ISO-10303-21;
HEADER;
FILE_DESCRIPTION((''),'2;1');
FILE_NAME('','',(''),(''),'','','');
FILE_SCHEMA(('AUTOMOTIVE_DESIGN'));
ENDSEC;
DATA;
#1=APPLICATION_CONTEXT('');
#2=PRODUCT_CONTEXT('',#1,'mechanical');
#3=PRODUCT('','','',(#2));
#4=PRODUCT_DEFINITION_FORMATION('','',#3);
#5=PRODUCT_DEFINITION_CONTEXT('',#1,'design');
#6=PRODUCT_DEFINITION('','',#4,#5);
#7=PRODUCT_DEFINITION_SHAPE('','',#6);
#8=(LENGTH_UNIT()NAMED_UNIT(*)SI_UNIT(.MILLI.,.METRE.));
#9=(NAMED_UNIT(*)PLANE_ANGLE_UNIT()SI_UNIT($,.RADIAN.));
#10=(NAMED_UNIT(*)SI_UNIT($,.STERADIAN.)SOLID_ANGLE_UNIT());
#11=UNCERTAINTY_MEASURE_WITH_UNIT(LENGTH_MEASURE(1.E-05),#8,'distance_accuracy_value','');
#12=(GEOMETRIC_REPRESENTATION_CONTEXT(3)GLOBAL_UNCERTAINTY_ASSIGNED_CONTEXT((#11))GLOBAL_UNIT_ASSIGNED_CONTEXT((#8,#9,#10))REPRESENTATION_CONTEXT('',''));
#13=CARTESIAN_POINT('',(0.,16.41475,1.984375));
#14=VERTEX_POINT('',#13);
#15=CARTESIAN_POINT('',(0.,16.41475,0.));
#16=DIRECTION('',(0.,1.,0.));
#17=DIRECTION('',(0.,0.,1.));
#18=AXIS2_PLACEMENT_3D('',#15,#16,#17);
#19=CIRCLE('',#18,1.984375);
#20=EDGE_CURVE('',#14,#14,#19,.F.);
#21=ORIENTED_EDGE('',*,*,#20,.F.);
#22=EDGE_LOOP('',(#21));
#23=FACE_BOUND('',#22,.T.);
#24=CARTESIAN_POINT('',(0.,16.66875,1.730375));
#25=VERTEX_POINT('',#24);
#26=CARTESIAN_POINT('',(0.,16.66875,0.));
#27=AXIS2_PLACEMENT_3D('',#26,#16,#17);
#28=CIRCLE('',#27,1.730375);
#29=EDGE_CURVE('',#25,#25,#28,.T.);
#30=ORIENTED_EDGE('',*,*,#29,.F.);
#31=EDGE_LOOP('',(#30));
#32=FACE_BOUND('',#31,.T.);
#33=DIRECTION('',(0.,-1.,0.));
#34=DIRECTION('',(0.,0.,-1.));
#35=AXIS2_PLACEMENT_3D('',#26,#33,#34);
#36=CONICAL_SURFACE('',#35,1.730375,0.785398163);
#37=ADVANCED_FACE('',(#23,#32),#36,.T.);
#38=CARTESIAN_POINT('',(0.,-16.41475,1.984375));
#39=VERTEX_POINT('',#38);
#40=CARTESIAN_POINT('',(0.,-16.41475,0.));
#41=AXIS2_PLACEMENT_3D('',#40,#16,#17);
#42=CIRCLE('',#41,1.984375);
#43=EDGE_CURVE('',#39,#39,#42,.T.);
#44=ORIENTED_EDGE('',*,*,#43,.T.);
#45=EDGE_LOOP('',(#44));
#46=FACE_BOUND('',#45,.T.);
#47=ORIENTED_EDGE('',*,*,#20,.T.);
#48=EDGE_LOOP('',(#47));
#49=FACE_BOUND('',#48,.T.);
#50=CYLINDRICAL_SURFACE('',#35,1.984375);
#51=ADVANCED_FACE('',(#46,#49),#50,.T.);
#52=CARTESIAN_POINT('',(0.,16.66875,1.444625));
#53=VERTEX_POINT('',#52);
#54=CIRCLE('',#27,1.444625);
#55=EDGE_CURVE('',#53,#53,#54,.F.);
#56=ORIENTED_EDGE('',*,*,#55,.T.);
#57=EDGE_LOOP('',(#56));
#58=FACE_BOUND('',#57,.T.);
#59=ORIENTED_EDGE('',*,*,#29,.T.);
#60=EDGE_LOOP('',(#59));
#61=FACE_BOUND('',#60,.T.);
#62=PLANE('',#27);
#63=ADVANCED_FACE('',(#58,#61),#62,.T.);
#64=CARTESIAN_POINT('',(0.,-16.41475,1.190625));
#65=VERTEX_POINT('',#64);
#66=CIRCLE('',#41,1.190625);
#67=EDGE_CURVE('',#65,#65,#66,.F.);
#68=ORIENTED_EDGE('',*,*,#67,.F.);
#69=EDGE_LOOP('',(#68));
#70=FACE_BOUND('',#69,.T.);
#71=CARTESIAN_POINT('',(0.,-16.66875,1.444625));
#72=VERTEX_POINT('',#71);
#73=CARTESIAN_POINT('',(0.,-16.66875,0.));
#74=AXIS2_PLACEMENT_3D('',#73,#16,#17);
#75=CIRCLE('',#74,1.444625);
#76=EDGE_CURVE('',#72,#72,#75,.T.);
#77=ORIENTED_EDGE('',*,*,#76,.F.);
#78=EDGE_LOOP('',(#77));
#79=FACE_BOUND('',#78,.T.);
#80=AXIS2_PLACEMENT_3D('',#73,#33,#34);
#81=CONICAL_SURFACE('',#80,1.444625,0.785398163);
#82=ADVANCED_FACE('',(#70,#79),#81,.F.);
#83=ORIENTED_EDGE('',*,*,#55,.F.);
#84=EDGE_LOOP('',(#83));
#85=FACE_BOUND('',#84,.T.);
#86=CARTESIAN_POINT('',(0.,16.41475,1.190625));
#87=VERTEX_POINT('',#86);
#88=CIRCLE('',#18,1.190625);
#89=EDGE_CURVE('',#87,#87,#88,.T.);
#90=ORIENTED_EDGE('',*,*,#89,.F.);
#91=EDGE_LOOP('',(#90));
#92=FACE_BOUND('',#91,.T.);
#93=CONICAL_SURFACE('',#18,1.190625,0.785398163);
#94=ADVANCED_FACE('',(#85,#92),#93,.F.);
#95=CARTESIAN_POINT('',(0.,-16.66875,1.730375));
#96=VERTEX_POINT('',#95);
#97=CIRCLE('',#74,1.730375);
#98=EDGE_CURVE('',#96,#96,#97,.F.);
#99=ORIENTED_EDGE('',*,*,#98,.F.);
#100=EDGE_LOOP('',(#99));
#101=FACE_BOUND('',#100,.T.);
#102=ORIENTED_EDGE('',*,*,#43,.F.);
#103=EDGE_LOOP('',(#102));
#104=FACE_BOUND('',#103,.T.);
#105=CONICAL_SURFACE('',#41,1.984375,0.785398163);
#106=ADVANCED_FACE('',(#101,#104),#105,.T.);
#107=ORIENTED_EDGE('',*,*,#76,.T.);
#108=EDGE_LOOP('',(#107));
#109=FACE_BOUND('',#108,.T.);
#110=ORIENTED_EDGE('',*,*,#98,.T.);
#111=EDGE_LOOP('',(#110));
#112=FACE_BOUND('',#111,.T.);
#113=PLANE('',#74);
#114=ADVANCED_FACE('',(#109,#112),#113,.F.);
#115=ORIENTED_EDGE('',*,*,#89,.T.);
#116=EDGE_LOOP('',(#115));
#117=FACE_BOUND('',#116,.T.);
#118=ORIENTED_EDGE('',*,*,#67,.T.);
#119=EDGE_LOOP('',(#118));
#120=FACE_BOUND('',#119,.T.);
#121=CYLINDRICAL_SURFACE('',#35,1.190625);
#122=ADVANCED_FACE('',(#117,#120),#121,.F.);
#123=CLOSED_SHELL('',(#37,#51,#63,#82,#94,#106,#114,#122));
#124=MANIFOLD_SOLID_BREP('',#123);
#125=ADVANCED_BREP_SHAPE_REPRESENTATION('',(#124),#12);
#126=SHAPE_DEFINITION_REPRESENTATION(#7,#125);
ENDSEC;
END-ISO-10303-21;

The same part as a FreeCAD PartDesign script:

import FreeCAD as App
import Part
import Sketcher
Q = App.Units.Quantity


def edges_at(feature, points):
    """Names of the edges that pass closest to the given points."""
    edges = feature.Shape.Edges
    near = lambda p: min(range(len(edges)), key=lambda i: edges[i].distToShape(Part.Vertex(*p))[0])
    return sorted({f"Edge{near(p) + 1}" for p in points})

doc = App.newDocument("Part")
body = doc.addObject("PartDesign::Body", "Body")

# Sketch on XZ plane
sketch1 = body.newObject("Sketcher::SketchObject", "Sketch")
sketch1.AttachmentSupport = (doc.getObject("XZ_Plane"), [""])
sketch1.MapMode = "FlatFace"
sketch1.addGeometry(Part.Circle(App.Vector(0, 0, 0), App.Vector(0, 0, 1), 2), False)
sketch1.addGeometry(Part.Circle(App.Vector(0, 0, 0), App.Vector(0, 0, 1), 1.2), False)
sketch1.addConstraint(Sketcher.Constraint("Coincident", 0, 3, -1, 1))
sketch1.addConstraint(Sketcher.Constraint("Coincident", 1, 3, -1, 1))
sketch1.addConstraint(Sketcher.Constraint("Diameter", 0, Q("0.15625 in")))
sketch1.addConstraint(Sketcher.Constraint("Diameter", 1, Q("0.09375 in")))
pad1 = body.newObject("PartDesign::Pad", "Pad")
pad1.Profile = sketch1
pad1.Length = Q("1.3125 in")
pad1.Midplane = True
doc.recompute()

chamfer = body.newObject("PartDesign::Chamfer", "Chamfer")
chamfer.Base = (pad1, edges_at(pad1, [
    (-1.984, -16.669, 0),
    (-1.984, 16.669, 0),
    (-1.191, -16.669, 0),
    (-1.191, 16.669, 0),
]))
chamfer.Size = Q("0.01 in")

doc.recompute()
